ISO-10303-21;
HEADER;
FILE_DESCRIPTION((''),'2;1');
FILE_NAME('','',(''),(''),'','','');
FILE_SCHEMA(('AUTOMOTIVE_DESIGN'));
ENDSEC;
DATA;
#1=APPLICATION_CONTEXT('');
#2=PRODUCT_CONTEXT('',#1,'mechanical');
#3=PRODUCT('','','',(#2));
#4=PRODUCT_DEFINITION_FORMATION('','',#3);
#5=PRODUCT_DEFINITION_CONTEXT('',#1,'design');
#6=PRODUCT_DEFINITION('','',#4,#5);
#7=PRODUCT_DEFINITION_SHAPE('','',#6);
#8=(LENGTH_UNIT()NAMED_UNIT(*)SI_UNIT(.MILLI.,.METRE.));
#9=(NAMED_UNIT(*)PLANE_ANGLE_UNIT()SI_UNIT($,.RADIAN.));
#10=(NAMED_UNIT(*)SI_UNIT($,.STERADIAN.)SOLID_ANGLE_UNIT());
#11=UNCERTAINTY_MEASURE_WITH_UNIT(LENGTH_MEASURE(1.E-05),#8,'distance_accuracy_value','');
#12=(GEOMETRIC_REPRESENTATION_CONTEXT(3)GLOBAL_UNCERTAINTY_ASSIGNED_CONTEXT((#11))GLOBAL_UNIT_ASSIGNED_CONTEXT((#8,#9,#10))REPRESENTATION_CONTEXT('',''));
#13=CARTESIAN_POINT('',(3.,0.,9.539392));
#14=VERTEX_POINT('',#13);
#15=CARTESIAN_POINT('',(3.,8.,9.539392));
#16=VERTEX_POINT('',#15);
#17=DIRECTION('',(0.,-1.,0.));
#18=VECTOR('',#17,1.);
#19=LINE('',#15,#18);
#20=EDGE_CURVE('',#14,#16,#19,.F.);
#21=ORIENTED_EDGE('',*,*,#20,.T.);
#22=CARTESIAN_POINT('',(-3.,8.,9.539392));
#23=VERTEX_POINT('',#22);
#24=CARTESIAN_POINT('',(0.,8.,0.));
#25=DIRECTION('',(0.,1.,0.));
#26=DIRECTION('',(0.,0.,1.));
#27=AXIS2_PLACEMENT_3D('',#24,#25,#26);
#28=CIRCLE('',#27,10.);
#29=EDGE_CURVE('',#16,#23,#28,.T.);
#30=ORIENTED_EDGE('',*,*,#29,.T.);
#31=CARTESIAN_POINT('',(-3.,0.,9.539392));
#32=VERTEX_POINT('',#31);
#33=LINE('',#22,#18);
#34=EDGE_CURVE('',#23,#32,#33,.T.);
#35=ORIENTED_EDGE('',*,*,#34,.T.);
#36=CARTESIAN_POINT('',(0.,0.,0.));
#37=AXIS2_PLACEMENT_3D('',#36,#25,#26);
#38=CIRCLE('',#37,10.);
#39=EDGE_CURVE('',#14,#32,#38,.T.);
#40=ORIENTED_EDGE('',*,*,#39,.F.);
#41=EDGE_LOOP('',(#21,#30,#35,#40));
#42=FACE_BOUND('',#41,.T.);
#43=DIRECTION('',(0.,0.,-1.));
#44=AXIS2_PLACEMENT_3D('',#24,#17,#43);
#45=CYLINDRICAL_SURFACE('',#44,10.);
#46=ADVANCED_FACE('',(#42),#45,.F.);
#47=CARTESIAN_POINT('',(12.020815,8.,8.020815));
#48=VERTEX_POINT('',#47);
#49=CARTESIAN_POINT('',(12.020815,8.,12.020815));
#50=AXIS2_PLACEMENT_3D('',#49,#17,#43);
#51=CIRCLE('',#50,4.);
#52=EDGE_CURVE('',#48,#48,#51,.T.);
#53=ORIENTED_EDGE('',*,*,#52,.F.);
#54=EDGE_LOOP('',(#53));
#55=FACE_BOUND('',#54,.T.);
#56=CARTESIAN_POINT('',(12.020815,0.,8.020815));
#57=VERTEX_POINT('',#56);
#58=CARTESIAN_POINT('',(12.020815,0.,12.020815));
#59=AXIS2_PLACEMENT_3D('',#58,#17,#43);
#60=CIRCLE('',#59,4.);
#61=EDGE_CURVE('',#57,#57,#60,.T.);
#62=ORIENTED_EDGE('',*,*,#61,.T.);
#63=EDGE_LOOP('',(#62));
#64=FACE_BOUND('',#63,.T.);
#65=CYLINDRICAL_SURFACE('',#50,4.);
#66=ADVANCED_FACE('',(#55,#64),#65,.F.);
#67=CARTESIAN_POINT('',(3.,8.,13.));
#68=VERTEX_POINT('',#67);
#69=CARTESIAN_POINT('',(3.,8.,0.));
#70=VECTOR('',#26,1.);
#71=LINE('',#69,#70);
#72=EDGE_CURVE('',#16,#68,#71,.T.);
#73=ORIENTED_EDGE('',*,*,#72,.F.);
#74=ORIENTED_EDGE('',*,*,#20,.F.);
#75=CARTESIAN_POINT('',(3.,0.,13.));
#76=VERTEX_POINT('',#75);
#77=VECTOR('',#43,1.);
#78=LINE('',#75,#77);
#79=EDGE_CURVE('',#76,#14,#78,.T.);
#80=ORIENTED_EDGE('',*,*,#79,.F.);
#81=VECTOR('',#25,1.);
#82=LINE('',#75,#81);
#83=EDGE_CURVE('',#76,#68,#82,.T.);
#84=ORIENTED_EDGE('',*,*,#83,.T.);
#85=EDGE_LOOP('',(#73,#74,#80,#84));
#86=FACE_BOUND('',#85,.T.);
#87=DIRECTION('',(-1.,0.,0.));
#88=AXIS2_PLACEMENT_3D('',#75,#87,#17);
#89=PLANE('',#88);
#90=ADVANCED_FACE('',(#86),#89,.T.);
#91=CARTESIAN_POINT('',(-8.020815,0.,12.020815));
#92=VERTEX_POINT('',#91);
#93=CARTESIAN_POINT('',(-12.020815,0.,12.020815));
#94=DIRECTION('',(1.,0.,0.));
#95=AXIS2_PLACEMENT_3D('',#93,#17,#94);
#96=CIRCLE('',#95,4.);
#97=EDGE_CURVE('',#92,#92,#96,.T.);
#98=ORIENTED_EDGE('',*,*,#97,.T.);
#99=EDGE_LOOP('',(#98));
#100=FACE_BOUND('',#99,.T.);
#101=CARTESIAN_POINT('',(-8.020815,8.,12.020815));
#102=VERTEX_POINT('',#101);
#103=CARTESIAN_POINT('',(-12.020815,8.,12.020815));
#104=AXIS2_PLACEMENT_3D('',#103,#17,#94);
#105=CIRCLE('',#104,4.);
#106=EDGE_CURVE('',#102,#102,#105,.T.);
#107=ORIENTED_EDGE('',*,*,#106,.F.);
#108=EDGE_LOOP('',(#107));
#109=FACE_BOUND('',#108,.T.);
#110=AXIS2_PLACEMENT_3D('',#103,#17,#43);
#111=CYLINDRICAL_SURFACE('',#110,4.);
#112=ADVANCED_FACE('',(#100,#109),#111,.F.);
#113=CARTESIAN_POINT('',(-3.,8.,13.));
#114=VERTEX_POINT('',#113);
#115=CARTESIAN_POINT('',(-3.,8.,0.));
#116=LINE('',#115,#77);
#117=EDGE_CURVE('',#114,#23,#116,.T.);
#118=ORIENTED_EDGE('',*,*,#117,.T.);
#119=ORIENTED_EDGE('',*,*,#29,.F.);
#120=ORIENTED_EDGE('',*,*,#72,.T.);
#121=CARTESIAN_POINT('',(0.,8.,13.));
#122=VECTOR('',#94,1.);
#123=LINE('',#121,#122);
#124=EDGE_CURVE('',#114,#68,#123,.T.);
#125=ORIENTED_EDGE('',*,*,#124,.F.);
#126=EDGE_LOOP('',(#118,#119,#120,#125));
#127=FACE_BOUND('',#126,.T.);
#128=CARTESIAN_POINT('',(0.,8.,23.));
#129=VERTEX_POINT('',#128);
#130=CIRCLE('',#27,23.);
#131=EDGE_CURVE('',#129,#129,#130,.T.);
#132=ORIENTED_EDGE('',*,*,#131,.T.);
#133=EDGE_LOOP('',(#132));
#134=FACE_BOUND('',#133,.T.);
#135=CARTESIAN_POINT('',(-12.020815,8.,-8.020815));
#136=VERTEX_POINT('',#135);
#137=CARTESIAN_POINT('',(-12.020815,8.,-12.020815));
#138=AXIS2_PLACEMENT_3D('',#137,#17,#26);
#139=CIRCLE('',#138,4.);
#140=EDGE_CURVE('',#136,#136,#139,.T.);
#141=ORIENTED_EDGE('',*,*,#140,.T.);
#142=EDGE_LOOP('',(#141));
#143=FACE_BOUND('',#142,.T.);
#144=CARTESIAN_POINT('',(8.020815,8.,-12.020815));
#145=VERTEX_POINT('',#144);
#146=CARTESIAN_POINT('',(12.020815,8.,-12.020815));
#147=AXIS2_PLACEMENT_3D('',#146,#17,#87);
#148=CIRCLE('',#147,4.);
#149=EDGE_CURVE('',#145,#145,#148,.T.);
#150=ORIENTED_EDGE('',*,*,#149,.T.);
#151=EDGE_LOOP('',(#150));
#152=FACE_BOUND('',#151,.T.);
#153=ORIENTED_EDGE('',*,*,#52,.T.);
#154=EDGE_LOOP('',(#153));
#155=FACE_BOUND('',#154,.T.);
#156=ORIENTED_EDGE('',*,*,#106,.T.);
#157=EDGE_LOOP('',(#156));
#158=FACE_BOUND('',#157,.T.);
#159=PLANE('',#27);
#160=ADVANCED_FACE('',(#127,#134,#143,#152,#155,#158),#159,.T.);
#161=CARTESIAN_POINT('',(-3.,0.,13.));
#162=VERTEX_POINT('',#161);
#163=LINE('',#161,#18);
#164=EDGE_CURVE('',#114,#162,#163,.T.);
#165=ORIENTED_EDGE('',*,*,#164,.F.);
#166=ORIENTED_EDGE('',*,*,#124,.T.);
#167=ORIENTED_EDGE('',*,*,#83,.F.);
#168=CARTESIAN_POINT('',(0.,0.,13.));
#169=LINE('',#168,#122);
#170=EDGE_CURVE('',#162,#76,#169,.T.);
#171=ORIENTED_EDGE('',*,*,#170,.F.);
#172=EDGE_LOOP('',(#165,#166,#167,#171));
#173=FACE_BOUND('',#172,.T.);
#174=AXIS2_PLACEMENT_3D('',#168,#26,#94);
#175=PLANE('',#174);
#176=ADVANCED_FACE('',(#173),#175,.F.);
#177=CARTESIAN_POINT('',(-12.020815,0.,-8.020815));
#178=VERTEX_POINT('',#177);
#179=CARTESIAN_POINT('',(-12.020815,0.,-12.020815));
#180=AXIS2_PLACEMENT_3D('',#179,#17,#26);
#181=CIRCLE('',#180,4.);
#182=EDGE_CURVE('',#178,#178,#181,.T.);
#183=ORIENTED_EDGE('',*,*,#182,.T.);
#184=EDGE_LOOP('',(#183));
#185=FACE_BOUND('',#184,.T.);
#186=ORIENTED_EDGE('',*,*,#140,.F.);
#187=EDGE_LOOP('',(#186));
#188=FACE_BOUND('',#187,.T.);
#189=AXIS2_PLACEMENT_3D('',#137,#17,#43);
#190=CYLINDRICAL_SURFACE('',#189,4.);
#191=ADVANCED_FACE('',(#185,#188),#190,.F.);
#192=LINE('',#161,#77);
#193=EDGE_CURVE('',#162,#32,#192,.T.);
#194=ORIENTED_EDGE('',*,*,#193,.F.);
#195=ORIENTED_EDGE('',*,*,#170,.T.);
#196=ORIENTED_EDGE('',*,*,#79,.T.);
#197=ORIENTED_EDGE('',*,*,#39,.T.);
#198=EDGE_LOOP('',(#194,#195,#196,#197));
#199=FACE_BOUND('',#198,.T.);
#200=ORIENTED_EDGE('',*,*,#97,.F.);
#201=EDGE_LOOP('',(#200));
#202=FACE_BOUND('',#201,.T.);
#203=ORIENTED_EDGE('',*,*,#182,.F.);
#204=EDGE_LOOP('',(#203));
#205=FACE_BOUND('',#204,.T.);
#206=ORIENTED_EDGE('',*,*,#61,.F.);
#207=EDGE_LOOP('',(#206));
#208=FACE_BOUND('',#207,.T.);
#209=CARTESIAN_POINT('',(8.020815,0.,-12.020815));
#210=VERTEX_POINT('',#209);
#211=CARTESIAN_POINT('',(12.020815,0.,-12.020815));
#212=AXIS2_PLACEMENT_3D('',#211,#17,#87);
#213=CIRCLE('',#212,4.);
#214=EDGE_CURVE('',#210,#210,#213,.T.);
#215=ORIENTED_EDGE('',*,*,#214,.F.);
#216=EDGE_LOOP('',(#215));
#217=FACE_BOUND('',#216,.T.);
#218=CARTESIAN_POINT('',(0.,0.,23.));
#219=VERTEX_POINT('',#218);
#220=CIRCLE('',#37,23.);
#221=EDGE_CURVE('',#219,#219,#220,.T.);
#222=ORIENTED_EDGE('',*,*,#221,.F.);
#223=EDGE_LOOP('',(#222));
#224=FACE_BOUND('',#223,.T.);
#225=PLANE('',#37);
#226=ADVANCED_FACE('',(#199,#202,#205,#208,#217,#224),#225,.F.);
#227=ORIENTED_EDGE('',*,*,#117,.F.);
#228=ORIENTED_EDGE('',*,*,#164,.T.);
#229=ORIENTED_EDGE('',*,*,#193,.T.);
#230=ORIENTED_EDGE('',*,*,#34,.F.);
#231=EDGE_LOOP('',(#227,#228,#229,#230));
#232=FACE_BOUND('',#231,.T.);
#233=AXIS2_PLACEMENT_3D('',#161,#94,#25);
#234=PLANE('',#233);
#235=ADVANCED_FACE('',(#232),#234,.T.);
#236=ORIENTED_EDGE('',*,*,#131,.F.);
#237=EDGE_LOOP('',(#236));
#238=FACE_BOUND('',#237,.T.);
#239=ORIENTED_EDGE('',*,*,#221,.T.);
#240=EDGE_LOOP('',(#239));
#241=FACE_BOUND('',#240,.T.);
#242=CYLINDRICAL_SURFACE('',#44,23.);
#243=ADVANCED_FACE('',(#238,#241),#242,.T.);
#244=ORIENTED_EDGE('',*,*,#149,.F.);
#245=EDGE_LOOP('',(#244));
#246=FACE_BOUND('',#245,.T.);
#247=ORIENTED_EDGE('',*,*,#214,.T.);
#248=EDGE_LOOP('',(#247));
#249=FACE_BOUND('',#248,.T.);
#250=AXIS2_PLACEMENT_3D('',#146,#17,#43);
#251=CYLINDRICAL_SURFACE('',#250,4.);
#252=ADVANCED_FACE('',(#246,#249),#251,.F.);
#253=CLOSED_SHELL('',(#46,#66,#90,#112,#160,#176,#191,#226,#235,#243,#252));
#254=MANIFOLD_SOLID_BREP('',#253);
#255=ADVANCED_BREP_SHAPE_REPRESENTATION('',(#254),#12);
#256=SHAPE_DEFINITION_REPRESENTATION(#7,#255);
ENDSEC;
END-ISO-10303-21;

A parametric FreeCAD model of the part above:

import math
import FreeCAD as App
import Part
import Sketcher
from FreeCAD import Vector
Q = App.Units.Quantity

doc = App.newDocument("Part")
body = doc.addObject("PartDesign::Body", "Body")

# Sketch on XZ plane
sketch1 = doc.addObject("Sketcher::SketchObject", "Sketch")
body.addObject(sketch1)
sketch1.AttachmentSupport = (doc.XZ_Plane, [""])
sketch1.MapMode = "FlatFace"
sketch1.addGeometry([
    Part.Circle(Vector(0, 0, 0), Vector(0, 0, 1), 23),
    Part.Circle(Vector(0, 0, 0), Vector(0, 0, 1), 10),
], False)
sketch1.addConstraint([
    Sketcher.Constraint("Coincident", 0, 3, -1, 1),
    Sketcher.Constraint("Coincident", 1, 3, -1, 1),
    Sketcher.Constraint("Diameter", 0, Q("46 mm")),
    Sketcher.Constraint("Diameter", 1, Q("20 mm")),
])
pad1 = doc.addObject("PartDesign::Pad", "Pad")
body.addObject(pad1)
pad1.Profile = sketch1
pad1.Length = 8
pad1.Reversed = True

# Sketch on XY plane
sketch2 = doc.addObject("Sketcher::SketchObject", "Sketch001")
body.addObject(sketch2)
sketch2.AttachmentSupport = (doc.XY_Plane, [""])
sketch2.MapMode = "FlatFace"
sketch2.AttachmentOffset = App.Placement(Vector(0, 0, 10), App.Rotation())
sketch2.addGeometry([
    Part.LineSegment(Vector(-3, 12, 0), Vector(-3, 0, 0)),
    Part.ArcOfCircle(Part.Circle(Vector(0, 0, 0), Vector(0, 0, 1), 3), math.radians(180), math.radians(360)),
    Part.LineSegment(Vector(3, 0, 0), Vector(3, 12, 0)),
    Part.ArcOfCircle(Part.Circle(Vector(0, 12, 0), Vector(0, 0, 1), 3), math.radians(0), math.radians(180)),
], False)
sketch2.addConstraint([
    Sketcher.Constraint("Tangent", 0, 2, 1, 1),
    Sketcher.Constraint("Tangent", 1, 2, 2, 1),
    Sketcher.Constraint("Tangent", 2, 2, 3, 1),
    Sketcher.Constraint("Tangent", 3, 2, 0, 1),
    Sketcher.Constraint("Vertical", 0),
    Sketcher.Constraint("Vertical", 2),
    Sketcher.Constraint("Coincident", 1, 3, -1, 1),
    Sketcher.Constraint("Radius", 1, Q("3 mm")),
    Sketcher.Constraint("DistanceY", 0, 2, 0, 1, Q("12 mm")),
])
pocket1 = doc.addObject("PartDesign::Pocket", "Pocket")
body.addObject(pocket1)
pocket1.Profile = sketch2
pocket1.Type = "TwoLengths"
pocket1.Length = 3
pocket1.Length2 = 1
pocket1.Reversed = True

# Sketch on XZ plane
sketch3 = doc.addObject("Sketcher::SketchObject", "Sketch002")
body.addObject(sketch3)
sketch3.AttachmentSupport = (doc.XZ_Plane, [""])
sketch3.MapMode = "FlatFace"
sketch3.addGeometry(Part.Circle(Vector(12.020815, 12.020815, 0), Vector(0, 0, 1), 4), False)
sketch3.addConstraint([
    Sketcher.Constraint("Diameter", 0, Q("8 mm")),
    Sketcher.Constraint("DistanceX", -1, 1, 0, 3, Q("12.020815 mm")),
    Sketcher.Constraint("DistanceY", -1, 1, 0, 3, Q("12.020815 mm")),
])
pocket2 = doc.addObject("PartDesign::Pocket", "Pocket001")
body.addObject(pocket2)
pocket2.Profile = sketch3
pocket2.Type = "ThroughAll"
doc.recompute()

polarpattern = doc.addObject("PartDesign::PolarPattern", "PolarPattern")
body.addObject(polarpattern)
polarpattern.Originals = [pocket2]
polarpattern.Axis = (doc.Y_Axis, [""])
polarpattern.Angle = 360
polarpattern.Occurrences = 4
body.Tip = polarpattern

doc.recompute()
